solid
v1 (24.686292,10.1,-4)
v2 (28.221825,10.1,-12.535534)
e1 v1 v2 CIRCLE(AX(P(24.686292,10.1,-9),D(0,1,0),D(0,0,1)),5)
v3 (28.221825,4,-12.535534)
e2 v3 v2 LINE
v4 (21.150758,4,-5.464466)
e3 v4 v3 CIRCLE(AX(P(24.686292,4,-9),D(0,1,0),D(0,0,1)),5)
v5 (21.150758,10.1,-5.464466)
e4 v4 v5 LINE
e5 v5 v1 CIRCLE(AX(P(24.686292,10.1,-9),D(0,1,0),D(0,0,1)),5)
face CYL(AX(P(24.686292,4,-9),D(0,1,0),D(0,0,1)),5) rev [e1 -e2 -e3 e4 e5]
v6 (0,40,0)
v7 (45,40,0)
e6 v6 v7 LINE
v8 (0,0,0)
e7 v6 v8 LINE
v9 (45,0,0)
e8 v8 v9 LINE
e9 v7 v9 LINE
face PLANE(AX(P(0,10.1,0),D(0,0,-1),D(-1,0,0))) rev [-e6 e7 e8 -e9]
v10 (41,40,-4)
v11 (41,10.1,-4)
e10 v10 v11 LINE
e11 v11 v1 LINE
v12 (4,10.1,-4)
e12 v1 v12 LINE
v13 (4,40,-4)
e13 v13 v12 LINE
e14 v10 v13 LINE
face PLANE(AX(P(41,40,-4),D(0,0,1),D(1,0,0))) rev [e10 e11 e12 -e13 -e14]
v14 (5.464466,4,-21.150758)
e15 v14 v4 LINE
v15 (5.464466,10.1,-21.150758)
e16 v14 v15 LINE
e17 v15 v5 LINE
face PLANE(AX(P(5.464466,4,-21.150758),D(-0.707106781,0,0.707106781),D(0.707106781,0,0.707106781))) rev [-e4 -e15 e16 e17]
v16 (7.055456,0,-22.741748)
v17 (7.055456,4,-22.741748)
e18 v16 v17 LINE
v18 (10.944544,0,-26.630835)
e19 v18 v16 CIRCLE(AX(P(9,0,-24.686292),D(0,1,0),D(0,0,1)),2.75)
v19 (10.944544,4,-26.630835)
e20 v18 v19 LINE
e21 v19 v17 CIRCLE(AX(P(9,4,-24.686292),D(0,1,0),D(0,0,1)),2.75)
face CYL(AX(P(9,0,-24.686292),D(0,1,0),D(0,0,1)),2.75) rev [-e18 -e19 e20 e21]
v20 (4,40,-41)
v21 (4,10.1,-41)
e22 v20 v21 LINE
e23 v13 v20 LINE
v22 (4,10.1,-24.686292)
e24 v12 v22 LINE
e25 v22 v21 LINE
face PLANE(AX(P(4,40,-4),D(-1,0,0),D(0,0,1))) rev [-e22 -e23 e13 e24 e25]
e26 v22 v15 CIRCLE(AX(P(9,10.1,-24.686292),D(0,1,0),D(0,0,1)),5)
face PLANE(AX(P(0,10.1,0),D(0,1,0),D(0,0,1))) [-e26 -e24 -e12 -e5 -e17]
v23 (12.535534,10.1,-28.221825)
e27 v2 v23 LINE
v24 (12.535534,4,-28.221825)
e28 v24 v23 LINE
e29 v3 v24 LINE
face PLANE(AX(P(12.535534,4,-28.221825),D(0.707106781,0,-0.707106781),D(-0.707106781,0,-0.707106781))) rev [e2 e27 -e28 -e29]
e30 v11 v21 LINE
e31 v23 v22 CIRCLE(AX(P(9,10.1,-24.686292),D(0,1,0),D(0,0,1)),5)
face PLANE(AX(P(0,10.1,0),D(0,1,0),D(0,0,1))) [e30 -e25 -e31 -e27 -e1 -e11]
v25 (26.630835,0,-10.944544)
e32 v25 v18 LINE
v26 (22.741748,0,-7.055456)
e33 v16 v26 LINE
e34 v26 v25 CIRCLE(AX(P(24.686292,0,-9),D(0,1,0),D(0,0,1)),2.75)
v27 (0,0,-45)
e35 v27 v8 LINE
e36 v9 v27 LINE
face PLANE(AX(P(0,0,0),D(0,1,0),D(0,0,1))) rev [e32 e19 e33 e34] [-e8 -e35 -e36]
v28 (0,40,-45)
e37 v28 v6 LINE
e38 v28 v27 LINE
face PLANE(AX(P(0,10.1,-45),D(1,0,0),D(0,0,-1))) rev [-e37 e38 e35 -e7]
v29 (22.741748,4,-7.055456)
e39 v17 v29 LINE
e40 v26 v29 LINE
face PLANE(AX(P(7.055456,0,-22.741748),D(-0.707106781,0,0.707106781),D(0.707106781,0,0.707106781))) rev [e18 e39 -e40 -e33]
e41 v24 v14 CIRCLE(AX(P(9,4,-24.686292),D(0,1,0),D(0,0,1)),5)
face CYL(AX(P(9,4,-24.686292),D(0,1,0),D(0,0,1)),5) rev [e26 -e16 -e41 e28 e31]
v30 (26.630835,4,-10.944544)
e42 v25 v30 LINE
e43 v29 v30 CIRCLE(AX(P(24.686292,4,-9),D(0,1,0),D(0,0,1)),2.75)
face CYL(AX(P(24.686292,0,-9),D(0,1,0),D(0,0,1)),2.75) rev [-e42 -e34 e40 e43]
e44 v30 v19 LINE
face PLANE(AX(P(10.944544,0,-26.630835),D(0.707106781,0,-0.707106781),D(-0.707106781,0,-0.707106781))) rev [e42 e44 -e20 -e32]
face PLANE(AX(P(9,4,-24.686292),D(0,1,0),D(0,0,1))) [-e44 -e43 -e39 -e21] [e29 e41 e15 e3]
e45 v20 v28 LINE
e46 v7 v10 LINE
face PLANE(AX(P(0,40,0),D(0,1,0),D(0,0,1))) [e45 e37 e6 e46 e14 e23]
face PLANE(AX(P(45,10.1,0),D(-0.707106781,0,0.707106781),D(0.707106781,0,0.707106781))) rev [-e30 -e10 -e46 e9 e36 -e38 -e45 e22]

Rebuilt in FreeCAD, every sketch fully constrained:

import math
import FreeCAD as App
import Part
import Sketcher
Q = App.Units.Quantity


def add_polygon(sketch, points):
    """Adds a closed chain of lines whose ends are joined by coincident constraints."""
    first, n = sketch.GeometryCount, len(points)
    for a, b in zip(points, points[1:] + points[:1]):
        sketch.addGeometry(Part.LineSegment(App.Vector(*a, 0), App.Vector(*b, 0)), False)
    for i in range(n):
        sketch.addConstraint(Sketcher.Constraint("Coincident", first + i, 2, first + (i + 1) % n, 1))

doc = App.newDocument("Part")
params = doc.addObject("Spreadsheet::Sheet", "Params")
for row, (alias, value) in enumerate([
    ("sketch1_width", "45 mm"),
    ("pad1_length", "10.1 mm"),
    ("sketch2_width", "45 mm"),
    ("sketch2_width2", "37 mm"),
    ("pad2_length", "29.9 mm"),
    ("sketch3_radius", "5 mm"),
    ("pocket1_length", "6.1 mm"),
    ("sketch4_radius", "2.75 mm"),
], start=1):
    params.set(f"A{row}", alias)
    params.set(f"B{row}", "=" + value)
    params.setAlias(f"B{row}", alias)

body = doc.addObject("PartDesign::Body", "Body")

sketch1 = body.newObject("Sketcher::SketchObject", "Sketch")
sketch1.AttachmentSupport = (doc.getObject("XZ_Plane"), [""])
sketch1.MapMode = "FlatFace"
add_polygon(sketch1, [(0, 0), (45, 0), (0, -45)])
sketch1.addConstraint(Sketcher.Constraint("Horizontal", 0))
sketch1.addConstraint(Sketcher.Constraint("Vertical", 2))
sketch1.addConstraint(Sketcher.Constraint("Coincident", 2, 2, -1, 1))
sketch1.addConstraint(Sketcher.Constraint("Equal", 0, 2))
sketch1.addConstraint(Sketcher.Constraint("DistanceX", 0, 1, 0, 2, 45.0))
sketch1.setExpression("Constraints[7]", "Params.sketch1_width")
pad1 = body.newObject("PartDesign::Pad", "Pad")
pad1.Profile = sketch1
pad1.setExpression("Length", "Params.pad1_length")
pad1.Reversed = True

sketch2 = body.newObject("Sketcher::SketchObject", "Sketch001")
sketch2.AttachmentSupport = (doc.getObject("XZ_Plane"), [""])
sketch2.MapMode = "FlatFace"
sketch2.AttachmentOffset = App.Placement(App.Vector(0, 0, -10.1), App.Rotation())
add_polygon(sketch2, [(0, 0), (45, 0), (41, -4), (4, -4), (4, -41), (0, -45)])
sketch2.addConstraint(Sketcher.Constraint("Horizontal", 0))
sketch2.addConstraint(Sketcher.Constraint("Horizontal", 2))
sketch2.addConstraint(Sketcher.Constraint("Vertical", 3))
sketch2.addConstraint(Sketcher.Constraint("Vertical", 5))
sketch2.addConstraint(Sketcher.Constraint("Coincident", 5, 2, -1, 1))
sketch2.addConstraint(Sketcher.Constraint("Parallel", 1, 4))
sketch2.addConstraint(Sketcher.Constraint("Equal", 2, 3))
sketch2.addConstraint(Sketcher.Constraint("Equal", 0, 5))
sketch2.addConstraint(Sketcher.Constraint("Equal", 1, 4))
sketch2.addConstraint(Sketcher.Constraint("DistanceX", 0, 1, 0, 2, 45.0))
sketch2.addConstraint(Sketcher.Constraint("DistanceX", 2, 2, 2, 1, 37.0))
sketch2.setExpression("Constraints[15]", "Params.sketch2_width")
sketch2.setExpression("Constraints[16]", "Params.sketch2_width2")
pad2 = body.newObject("PartDesign::Pad", "Pad001")
pad2.Profile = sketch2
pad2.setExpression("Length", "Params.pad2_length")
pad2.Reversed = True

sketch3 = body.newObject("Sketcher::SketchObject", "Sketch002")
sketch3.AttachmentSupport = (doc.getObject("XZ_Plane"), [""])
sketch3.MapMode = "FlatFace"
sketch3.AttachmentOffset = App.Placement(App.Vector(0, 0, -10.1), App.Rotation())
sketch3.addGeometry(Part.LineSegment(App.Vector(28, -13, 0), App.Vector(13, -28, 0)), False)
sketch3.addGeometry(Part.ArcOfCircle(Part.Circle(App.Vector(9, -25, 0), App.Vector(0, 0, 1), 5), math.radians(135), math.radians(315)), False)
sketch3.addGeometry(Part.LineSegment(App.Vector(5, -21, 0), App.Vector(21, -5, 0)), False)
sketch3.addGeometry(Part.ArcOfCircle(Part.Circle(App.Vector(25, -9, 0), App.Vector(0, 0, 1), 5), math.radians(-45), math.radians(135)), False)
sketch3.addConstraint(Sketcher.Constraint("Tangent", 0, 2, 1, 2))
sketch3.addConstraint(Sketcher.Constraint("Tangent", 1, 1, 2, 1))
sketch3.addConstraint(Sketcher.Constraint("Tangent", 2, 2, 3, 2))
sketch3.addConstraint(Sketcher.Constraint("Tangent", 3, 1, 0, 1))
sketch3.addConstraint(Sketcher.Constraint("Equal", 1, 3))
sketch3.addConstraint(Sketcher.Constraint("Radius", 1, 5.0))
sketch3.addConstraint(Sketcher.Constraint("Angle", 0, Q("-135 deg")))
sketch3.addConstraint(Sketcher.Constraint("DistanceX", -1, 1, 1, 3, 9.0))
sketch3.addConstraint(Sketcher.Constraint("DistanceY", 3, 3, -1, 1, 9.0))
sketch3.addConstraint(Sketcher.Constraint("DistanceY", 1, 3, -1, 1, 24.686292))
sketch3.setExpression("Constraints[5]", "Params.sketch3_radius")
pocket1 = body.newObject("PartDesign::Pocket", "Pocket")
pocket1.Profile = sketch3
pocket1.setExpression("Length", "Params.pocket1_length")
pocket1.Reversed = True

sketch4 = body.newObject("Sketcher::SketchObject", "Sketch003")
sketch4.AttachmentSupport = (doc.getObject("XZ_Plane"), [""])
sketch4.MapMode = "FlatFace"
sketch4.AttachmentOffset = App.Placement(App.Vector(0, 0, -10.1), App.Rotation())
sketch4.addGeometry(Part.LineSegment(App.Vector(26.6, -10.9, 0), App.Vector(10.9, -26.6, 0)), False)
sketch4.addGeometry(Part.ArcOfCircle(Part.Circle(App.Vector(9, -24.7, 0), App.Vector(0, 0, 1), 2.8), math.radians(135), math.radians(315)), False)
sketch4.addGeometry(Part.LineSegment(App.Vector(7.1, -22.7, 0), App.Vector(22.7, -7.1, 0)), False)
sketch4.addGeometry(Part.ArcOfCircle(Part.Circle(App.Vector(24.7, -9, 0), App.Vector(0, 0, 1), 2.8), math.radians(-45), math.radians(135)), False)
sketch4.addConstraint(Sketcher.Constraint("Tangent", 0, 2, 1, 2))
sketch4.addConstraint(Sketcher.Constraint("Tangent", 1, 1, 2, 1))
sketch4.addConstraint(Sketcher.Constraint("Tangent", 2, 2, 3, 2))
sketch4.addConstraint(Sketcher.Constraint("Tangent", 3, 1, 0, 1))
sketch4.addConstraint(Sketcher.Constraint("Equal", 1, 3))
sketch4.addConstraint(Sketcher.Constraint("Angle", 0, Q("-135 deg")))
sketch4.addConstraint(Sketcher.Constraint("Radius", 1, 2.75))
sketch4.addConstraint(Sketcher.Constraint("DistanceX", -1, 1, 1, 3, 9.0))
sketch4.addConstraint(Sketcher.Constraint("DistanceY", 3, 3, -1, 1, 9.0))
sketch4.addConstraint(Sketcher.Constraint("DistanceY", 1, 3, -1, 1, 24.686292))
sketch4.setExpression("Constraints[6]", "Params.sketch4_radius")
pocket2 = body.newObject("PartDesign::Pocket", "Pocket001")
pocket2.Profile = sketch4
pocket2.Type = "ThroughAll"
pocket2.Reversed = True

doc.recompute()
